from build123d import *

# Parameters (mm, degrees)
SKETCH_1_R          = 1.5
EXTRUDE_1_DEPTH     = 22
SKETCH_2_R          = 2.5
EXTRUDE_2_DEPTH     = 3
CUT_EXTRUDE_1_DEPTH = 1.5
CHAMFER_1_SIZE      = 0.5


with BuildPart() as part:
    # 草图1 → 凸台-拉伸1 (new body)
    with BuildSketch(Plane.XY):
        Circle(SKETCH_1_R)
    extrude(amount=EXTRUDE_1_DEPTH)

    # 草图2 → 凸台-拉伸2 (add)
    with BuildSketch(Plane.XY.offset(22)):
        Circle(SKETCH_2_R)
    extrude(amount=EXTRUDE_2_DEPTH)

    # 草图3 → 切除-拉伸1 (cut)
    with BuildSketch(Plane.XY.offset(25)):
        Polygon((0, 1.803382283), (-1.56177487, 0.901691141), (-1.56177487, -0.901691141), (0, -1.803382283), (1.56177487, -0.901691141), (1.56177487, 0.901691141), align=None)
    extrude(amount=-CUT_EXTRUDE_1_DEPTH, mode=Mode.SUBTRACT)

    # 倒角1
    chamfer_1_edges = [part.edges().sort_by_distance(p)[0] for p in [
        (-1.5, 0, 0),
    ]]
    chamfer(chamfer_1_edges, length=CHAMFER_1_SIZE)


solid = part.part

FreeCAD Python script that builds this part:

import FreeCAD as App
import Part
import Sketcher
from FreeCAD import Vector
Q = App.Units.Quantity


def edges_at(feature, points):
    """Names of the edges that pass closest to the given points."""
    edges = feature.Shape.Edges
    near = lambda p: min(range(len(edges)), key=lambda i: edges[i].distToShape(Part.Vertex(*p))[0])
    return sorted({f"Edge{near(p) + 1}" for p in points})


def add_polygon(sketch, points):
    """Adds a closed chain of lines whose ends are joined by coincident constraints."""
    first, n = sketch.GeometryCount, len(points)
    for a, b in zip(points, points[1:] + points[:1]):
        sketch.addGeometry(Part.LineSegment(App.Vector(*a, 0), App.Vector(*b, 0)), False)
    for i in range(n):
        sketch.addConstraint(Sketcher.Constraint("Coincident", first + i, 2, first + (i + 1) % n, 1))

doc = App.newDocument("Part")
body = doc.addObject("PartDesign::Body", "Body")

# Sketch on XY plane
sketch1 = body.newObject("Sketcher::SketchObject", "Sketch")
sketch1.AttachmentSupport = (doc.getObject("XY_Plane"), [""])
sketch1.MapMode = "FlatFace"
sketch1.addGeometry(Part.Circle(Vector(0, 0, 0), Vector(0, 0, 1), 1.5), False)
sketch1.addConstraint([
    Sketcher.Constraint("Coincident", 0, 3, -1, 1),
    Sketcher.Constraint("Diameter", 0, 3.0),
])
pad1 = body.newObject("PartDesign::Pad", "Pad")
pad1.Profile = sketch1
pad1.Length = 22

# Sketch on XY plane
sketch2 = body.newObject("Sketcher::SketchObject", "Sketch001")
sketch2.AttachmentSupport = (doc.getObject("XY_Plane"), [""])
sketch2.MapMode = "FlatFace"
sketch2.AttachmentOffset = App.Placement(Vector(0, 0, 22), App.Rotation())
sketch2.addGeometry(Part.Circle(Vector(0, 0, 0), Vector(0, 0, 1), 2.5), False)
sketch2.addConstraint([
    Sketcher.Constraint("Coincident", 0, 3, -1, 1),
    Sketcher.Constraint("Diameter", 0, 5.0),
])
pad2 = body.newObject("PartDesign::Pad", "Pad001")
pad2.Profile = sketch2
pad2.Length = 3

# Sketch on XY plane
sketch3 = body.newObject("Sketcher::SketchObject", "Sketch002")
sketch3.AttachmentSupport = (doc.getObject("XY_Plane"), [""])
sketch3.MapMode = "FlatFace"
sketch3.AttachmentOffset = App.Placement(Vector(0, 0, 25), App.Rotation())
add_polygon(sketch3, [(0, 1.803382), (-1.561775, 0.901691), (-1.561775, -0.901691), (0, -1.803382), (1.561775, -0.901691), (1.561775, 0.901691)])  # lines 0-5
sketch3.addConstraint([
    Sketcher.Constraint("Vertical", 1),
    Sketcher.Constraint("Vertical", 4),
    Sketcher.Constraint("Symmetric", 0, 2, 3, 2, -1, 1),
    Sketcher.Constraint("Symmetric", 2, 2, 5, 2, -1, 1),
    Sketcher.Constraint("PointOnObject", 2, 2, -2),
    Sketcher.Constraint("Parallel", 2, 5),
    Sketcher.Constraint("Horizontal", 1, 2, 3, 2),
    Sketcher.Constraint("Angle", 0, Q("-150 deg")),
    Sketcher.Constraint("DistanceY", 1, 2, 1, 1, 1.803382),
    Sketcher.Constraint("DistanceY", 2, 2, 1, 2, 0.901691),
])
pocket1 = body.newObject("PartDesign::Pocket", "Pocket")
pocket1.Profile = sketch3
pocket1.Length = 1.5
doc.recompute()

chamfer = body.newObject("PartDesign::Chamfer", "Chamfer")
chamfer.Base = (pocket1, edges_at(pocket1, [(-1.5, 0, 0)]))
chamfer.Size = 0.5

doc.recompute()
